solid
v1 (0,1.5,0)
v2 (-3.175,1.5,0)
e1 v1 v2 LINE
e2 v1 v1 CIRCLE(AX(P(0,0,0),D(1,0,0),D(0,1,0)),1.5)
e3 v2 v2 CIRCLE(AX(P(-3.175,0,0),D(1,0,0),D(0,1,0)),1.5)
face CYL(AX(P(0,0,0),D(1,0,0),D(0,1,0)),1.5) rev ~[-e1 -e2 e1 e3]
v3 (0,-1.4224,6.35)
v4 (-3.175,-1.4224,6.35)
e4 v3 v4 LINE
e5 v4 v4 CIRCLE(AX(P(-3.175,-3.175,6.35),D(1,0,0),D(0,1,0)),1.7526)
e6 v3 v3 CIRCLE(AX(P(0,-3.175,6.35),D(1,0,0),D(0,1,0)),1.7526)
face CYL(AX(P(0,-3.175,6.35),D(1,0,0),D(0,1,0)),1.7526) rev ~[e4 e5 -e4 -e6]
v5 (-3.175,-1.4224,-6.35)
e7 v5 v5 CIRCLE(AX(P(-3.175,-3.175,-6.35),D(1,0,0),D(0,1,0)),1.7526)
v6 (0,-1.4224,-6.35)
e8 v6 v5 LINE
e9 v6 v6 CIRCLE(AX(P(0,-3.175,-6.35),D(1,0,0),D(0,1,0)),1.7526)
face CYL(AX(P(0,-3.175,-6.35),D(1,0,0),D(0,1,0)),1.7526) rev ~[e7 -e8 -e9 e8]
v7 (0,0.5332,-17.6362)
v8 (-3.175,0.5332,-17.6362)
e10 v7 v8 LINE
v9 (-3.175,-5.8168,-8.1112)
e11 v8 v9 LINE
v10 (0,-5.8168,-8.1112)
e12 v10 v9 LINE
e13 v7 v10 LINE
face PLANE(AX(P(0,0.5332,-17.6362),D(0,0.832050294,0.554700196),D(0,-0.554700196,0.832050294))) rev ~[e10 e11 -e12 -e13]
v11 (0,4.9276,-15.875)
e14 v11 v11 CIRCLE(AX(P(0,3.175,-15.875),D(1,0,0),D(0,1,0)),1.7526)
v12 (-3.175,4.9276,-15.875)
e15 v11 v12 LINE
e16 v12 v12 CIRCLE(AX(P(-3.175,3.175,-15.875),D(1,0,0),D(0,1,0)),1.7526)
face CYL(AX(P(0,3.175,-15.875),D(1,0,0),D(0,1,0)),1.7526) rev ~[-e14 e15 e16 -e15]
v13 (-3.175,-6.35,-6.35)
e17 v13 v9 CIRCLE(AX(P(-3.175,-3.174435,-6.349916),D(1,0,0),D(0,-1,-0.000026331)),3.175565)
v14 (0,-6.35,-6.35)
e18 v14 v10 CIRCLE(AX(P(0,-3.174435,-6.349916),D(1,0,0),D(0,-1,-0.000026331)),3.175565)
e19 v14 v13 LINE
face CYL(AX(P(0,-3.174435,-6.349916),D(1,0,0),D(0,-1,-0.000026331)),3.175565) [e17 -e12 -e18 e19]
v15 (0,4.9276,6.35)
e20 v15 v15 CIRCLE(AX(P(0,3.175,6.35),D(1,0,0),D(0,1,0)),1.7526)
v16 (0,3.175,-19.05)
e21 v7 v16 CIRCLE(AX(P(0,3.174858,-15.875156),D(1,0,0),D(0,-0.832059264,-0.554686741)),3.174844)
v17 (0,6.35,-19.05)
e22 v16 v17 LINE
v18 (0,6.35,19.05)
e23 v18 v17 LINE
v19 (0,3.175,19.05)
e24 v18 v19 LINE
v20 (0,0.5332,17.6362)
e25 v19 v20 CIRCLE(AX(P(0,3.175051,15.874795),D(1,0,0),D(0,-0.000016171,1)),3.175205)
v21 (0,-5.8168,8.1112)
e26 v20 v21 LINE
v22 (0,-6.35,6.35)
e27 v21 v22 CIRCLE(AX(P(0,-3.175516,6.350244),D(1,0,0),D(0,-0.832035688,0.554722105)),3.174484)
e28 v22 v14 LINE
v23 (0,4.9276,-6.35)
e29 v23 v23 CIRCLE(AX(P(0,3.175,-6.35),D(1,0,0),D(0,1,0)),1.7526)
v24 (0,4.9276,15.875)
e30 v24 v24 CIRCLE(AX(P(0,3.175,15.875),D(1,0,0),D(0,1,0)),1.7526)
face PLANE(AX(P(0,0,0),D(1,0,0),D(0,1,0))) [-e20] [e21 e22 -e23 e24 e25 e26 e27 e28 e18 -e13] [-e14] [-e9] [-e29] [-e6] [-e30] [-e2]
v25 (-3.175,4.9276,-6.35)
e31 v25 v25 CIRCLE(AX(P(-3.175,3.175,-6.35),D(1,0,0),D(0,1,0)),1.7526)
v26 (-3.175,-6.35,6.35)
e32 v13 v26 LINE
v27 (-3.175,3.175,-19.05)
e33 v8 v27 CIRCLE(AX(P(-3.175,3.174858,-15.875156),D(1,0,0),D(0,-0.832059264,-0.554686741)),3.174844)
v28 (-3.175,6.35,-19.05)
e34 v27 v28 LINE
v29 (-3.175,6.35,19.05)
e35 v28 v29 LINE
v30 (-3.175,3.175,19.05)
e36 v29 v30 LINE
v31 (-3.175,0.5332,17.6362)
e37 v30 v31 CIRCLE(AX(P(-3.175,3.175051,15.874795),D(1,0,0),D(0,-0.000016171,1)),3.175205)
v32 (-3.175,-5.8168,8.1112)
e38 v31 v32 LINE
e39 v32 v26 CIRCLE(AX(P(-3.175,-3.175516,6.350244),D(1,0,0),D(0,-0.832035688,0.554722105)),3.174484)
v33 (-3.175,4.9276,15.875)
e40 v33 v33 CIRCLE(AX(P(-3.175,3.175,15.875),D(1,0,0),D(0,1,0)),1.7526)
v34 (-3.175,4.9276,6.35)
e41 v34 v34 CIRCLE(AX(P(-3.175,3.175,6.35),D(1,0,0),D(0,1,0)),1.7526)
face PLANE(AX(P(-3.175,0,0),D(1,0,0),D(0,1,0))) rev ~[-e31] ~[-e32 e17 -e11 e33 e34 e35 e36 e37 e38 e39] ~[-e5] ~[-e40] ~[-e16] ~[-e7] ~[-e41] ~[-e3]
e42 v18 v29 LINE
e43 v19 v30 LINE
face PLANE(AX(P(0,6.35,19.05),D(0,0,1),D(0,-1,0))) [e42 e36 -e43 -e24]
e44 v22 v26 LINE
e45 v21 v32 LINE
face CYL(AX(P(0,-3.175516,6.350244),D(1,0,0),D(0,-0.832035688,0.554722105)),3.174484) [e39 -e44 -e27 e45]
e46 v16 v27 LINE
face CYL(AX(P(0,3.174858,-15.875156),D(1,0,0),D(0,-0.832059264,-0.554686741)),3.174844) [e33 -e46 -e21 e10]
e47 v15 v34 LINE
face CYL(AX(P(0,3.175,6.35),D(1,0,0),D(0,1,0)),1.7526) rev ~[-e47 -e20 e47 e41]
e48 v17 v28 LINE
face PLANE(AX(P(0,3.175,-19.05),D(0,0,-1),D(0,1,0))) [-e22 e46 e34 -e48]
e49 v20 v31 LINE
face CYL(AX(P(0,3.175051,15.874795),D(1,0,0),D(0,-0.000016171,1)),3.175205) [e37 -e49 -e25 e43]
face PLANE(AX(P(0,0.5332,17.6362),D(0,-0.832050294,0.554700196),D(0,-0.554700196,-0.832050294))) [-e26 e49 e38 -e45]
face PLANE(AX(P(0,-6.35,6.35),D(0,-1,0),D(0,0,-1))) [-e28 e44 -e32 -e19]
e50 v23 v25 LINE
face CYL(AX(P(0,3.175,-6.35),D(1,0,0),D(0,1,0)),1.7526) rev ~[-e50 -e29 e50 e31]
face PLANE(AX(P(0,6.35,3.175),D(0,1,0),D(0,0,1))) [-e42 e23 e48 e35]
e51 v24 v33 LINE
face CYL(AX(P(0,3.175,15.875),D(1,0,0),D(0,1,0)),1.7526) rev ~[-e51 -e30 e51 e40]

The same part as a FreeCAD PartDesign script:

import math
import FreeCAD as App
import Part
import Sketcher
from FreeCAD import Vector
Q = App.Units.Quantity

doc = App.newDocument("Part")
body = doc.addObject("PartDesign::Body", "Body")

# Sketch on YZ plane
sketch1 = body.newObject("Sketcher::SketchObject", "Sketch")
sketch1.AttachmentSupport = (doc.getObject("YZ_Plane"), [""])
sketch1.MapMode = "FlatFace"
sketch1.addGeometry(Part.LineSegment(Vector(6.3, 19.1, 0), Vector(3.2, 19.1, 0)), False)
sketch1.addGeometry(Part.ArcOfCircle(Part.Circle(Vector(3.2, 15.9, 0), Vector(0, 0, 1), 3.2), math.radians(90), math.radians(146)), False)
sketch1.addGeometry(Part.LineSegment(Vector(0.5, 17.6, 0), Vector(-5.8, 8.1, 0)), False)
sketch1.addGeometry(Part.ArcOfCircle(Part.Circle(Vector(-3.2, 6.3, 0), Vector(0, 0, 1), 3.2), math.radians(146), math.radians(180)), False)
sketch1.addGeometry(Part.LineSegment(Vector(-6.3, 6.3, 0), Vector(-6.3, -6.3, 0)), False)
sketch1.addGeometry(Part.ArcOfCircle(Part.Circle(Vector(-3.2, -6.3, 0), Vector(0, 0, 1), 3.2), math.radians(180), math.radians(214)), False)
sketch1.addGeometry(Part.LineSegment(Vector(-5.8, -8.1, 0), Vector(0.5, -17.6, 0)), False)
sketch1.addGeometry(Part.ArcOfCircle(Part.Circle(Vector(3.2, -15.9, 0), Vector(0, 0, 1), 3.2), math.radians(-146), math.radians(-90)), False)
sketch1.addGeometry(Part.LineSegment(Vector(3.2, -19.1, 0), Vector(6.3, -19.1, 0)), False)
sketch1.addGeometry(Part.LineSegment(Vector(6.3, -19.1, 0), Vector(6.3, 19.1, 0)), False)
sketch1.addGeometry(Part.Circle(Vector(-3.2, 6.3, 0), Vector(0, 0, 1), 1.8), False)
sketch1.addGeometry(Part.Circle(Vector(3.2, 6.3, 0), Vector(0, 0, 1), 1.8), False)
sketch1.addGeometry(Part.Circle(Vector(3.2, 15.9, 0), Vector(0, 0, 1), 1.8), False)
sketch1.addGeometry(Part.Circle(Vector(0, 0, 0), Vector(0, 0, 1), 1.5), False)
sketch1.addGeometry(Part.Circle(Vector(3.2, -6.3, 0), Vector(0, 0, 1), 1.8), False)
sketch1.addGeometry(Part.Circle(Vector(-3.2, -6.3, 0), Vector(0, 0, 1), 1.8), False)
sketch1.addGeometry(Part.Circle(Vector(3.2, -15.9, 0), Vector(0, 0, 1), 1.8), False)
sketch1.addConstraint(Sketcher.Constraint("Tangent", 0, 2, 1, 1))
sketch1.addConstraint(Sketcher.Constraint("Tangent", 1, 2, 2, 1))
sketch1.addConstraint(Sketcher.Constraint("Tangent", 2, 2, 3, 1))
sketch1.addConstraint(Sketcher.Constraint("Tangent", 3, 2, 4, 1))
sketch1.addConstraint(Sketcher.Constraint("Tangent", 4, 2, 5, 1))
sketch1.addConstraint(Sketcher.Constraint("Tangent", 5, 2, 6, 1))
sketch1.addConstraint(Sketcher.Constraint("Tangent", 6, 2, 7, 1))
sketch1.addConstraint(Sketcher.Constraint("Tangent", 7, 2, 8, 1))
sketch1.addConstraint(Sketcher.Constraint("Coincident", 8, 2, 9, 1))
sketch1.addConstraint(Sketcher.Constraint("Coincident", 9, 2, 0, 1))
sketch1.addConstraint(Sketcher.Constraint("Horizontal", 0))
sketch1.addConstraint(Sketcher.Constraint("Vertical", 4))
sketch1.addConstraint(Sketcher.Constraint("Horizontal", 8))
sketch1.addConstraint(Sketcher.Constraint("Vertical", 9))
sketch1.addConstraint(Sketcher.Constraint("Coincident", 13, 3, -1, 1))
sketch1.addConstraint(Sketcher.Constraint("Coincident", 10, 3, 3, 3))
sketch1.addConstraint(Sketcher.Constraint("Coincident", 12, 3, 1, 3))
sketch1.addConstraint(Sketcher.Constraint("Coincident", 15, 3, 5, 3))
sketch1.addConstraint(Sketcher.Constraint("Coincident", 16, 3, 7, 3))
sketch1.addConstraint(Sketcher.Constraint("Equal", 1, 3))
sketch1.addConstraint(Sketcher.Constraint("Equal", 3, 5))
sketch1.addConstraint(Sketcher.Constraint("Equal", 5, 7))
sketch1.addConstraint(Sketcher.Constraint("Equal", 10, 11))
sketch1.addConstraint(Sketcher.Constraint("Equal", 11, 12))
sketch1.addConstraint(Sketcher.Constraint("Equal", 12, 14))
sketch1.addConstraint(Sketcher.Constraint("Equal", 14, 15))
sketch1.addConstraint(Sketcher.Constraint("Equal", 15, 16))
sketch1.addConstraint(Sketcher.Constraint("Symmetric", 5, 3, 11, 3, -1, 1))
sketch1.addConstraint(Sketcher.Constraint("Symmetric", 3, 3, 14, 3, -1, 1))
sketch1.addConstraint(Sketcher.Constraint("Symmetric", 1, 3, 7, 3, -1))
sketch1.addConstraint(Sketcher.Constraint("Horizontal", 10, 3, 11, 3))
sketch1.addConstraint(Sketcher.Constraint("Vertical", 7, 3, 11, 3))
sketch1.addConstraint(Sketcher.Constraint("Diameter", 10, Q("0.138 in")))
sketch1.addConstraint(Sketcher.Constraint("DistanceY", 4, 2, 4, 1, Q("0.5 in")))
sketch1.addConstraint(Sketcher.Constraint("DistanceY", 9, 1, 9, 2, Q("1.5 in")))
sketch1.addConstraint(Sketcher.Constraint("Radius", 1, Q("0.125 in")))
sketch1.addConstraint(Sketcher.Constraint("Diameter", 13, Q("0.1181 in")))
sketch1.addConstraint(Sketcher.Constraint("DistanceX", 3, 2, -1, 1, Q("0.25 in")))
sketch1.addConstraint(Sketcher.Constraint("DistanceX", -1, 1, 8, 2, Q("0.25 in")))
pad1 = body.newObject("PartDesign::Pad", "Pad")
pad1.Profile = sketch1
pad1.Length = Q("0.125 in")
pad1.Reversed = True

doc.recompute()
